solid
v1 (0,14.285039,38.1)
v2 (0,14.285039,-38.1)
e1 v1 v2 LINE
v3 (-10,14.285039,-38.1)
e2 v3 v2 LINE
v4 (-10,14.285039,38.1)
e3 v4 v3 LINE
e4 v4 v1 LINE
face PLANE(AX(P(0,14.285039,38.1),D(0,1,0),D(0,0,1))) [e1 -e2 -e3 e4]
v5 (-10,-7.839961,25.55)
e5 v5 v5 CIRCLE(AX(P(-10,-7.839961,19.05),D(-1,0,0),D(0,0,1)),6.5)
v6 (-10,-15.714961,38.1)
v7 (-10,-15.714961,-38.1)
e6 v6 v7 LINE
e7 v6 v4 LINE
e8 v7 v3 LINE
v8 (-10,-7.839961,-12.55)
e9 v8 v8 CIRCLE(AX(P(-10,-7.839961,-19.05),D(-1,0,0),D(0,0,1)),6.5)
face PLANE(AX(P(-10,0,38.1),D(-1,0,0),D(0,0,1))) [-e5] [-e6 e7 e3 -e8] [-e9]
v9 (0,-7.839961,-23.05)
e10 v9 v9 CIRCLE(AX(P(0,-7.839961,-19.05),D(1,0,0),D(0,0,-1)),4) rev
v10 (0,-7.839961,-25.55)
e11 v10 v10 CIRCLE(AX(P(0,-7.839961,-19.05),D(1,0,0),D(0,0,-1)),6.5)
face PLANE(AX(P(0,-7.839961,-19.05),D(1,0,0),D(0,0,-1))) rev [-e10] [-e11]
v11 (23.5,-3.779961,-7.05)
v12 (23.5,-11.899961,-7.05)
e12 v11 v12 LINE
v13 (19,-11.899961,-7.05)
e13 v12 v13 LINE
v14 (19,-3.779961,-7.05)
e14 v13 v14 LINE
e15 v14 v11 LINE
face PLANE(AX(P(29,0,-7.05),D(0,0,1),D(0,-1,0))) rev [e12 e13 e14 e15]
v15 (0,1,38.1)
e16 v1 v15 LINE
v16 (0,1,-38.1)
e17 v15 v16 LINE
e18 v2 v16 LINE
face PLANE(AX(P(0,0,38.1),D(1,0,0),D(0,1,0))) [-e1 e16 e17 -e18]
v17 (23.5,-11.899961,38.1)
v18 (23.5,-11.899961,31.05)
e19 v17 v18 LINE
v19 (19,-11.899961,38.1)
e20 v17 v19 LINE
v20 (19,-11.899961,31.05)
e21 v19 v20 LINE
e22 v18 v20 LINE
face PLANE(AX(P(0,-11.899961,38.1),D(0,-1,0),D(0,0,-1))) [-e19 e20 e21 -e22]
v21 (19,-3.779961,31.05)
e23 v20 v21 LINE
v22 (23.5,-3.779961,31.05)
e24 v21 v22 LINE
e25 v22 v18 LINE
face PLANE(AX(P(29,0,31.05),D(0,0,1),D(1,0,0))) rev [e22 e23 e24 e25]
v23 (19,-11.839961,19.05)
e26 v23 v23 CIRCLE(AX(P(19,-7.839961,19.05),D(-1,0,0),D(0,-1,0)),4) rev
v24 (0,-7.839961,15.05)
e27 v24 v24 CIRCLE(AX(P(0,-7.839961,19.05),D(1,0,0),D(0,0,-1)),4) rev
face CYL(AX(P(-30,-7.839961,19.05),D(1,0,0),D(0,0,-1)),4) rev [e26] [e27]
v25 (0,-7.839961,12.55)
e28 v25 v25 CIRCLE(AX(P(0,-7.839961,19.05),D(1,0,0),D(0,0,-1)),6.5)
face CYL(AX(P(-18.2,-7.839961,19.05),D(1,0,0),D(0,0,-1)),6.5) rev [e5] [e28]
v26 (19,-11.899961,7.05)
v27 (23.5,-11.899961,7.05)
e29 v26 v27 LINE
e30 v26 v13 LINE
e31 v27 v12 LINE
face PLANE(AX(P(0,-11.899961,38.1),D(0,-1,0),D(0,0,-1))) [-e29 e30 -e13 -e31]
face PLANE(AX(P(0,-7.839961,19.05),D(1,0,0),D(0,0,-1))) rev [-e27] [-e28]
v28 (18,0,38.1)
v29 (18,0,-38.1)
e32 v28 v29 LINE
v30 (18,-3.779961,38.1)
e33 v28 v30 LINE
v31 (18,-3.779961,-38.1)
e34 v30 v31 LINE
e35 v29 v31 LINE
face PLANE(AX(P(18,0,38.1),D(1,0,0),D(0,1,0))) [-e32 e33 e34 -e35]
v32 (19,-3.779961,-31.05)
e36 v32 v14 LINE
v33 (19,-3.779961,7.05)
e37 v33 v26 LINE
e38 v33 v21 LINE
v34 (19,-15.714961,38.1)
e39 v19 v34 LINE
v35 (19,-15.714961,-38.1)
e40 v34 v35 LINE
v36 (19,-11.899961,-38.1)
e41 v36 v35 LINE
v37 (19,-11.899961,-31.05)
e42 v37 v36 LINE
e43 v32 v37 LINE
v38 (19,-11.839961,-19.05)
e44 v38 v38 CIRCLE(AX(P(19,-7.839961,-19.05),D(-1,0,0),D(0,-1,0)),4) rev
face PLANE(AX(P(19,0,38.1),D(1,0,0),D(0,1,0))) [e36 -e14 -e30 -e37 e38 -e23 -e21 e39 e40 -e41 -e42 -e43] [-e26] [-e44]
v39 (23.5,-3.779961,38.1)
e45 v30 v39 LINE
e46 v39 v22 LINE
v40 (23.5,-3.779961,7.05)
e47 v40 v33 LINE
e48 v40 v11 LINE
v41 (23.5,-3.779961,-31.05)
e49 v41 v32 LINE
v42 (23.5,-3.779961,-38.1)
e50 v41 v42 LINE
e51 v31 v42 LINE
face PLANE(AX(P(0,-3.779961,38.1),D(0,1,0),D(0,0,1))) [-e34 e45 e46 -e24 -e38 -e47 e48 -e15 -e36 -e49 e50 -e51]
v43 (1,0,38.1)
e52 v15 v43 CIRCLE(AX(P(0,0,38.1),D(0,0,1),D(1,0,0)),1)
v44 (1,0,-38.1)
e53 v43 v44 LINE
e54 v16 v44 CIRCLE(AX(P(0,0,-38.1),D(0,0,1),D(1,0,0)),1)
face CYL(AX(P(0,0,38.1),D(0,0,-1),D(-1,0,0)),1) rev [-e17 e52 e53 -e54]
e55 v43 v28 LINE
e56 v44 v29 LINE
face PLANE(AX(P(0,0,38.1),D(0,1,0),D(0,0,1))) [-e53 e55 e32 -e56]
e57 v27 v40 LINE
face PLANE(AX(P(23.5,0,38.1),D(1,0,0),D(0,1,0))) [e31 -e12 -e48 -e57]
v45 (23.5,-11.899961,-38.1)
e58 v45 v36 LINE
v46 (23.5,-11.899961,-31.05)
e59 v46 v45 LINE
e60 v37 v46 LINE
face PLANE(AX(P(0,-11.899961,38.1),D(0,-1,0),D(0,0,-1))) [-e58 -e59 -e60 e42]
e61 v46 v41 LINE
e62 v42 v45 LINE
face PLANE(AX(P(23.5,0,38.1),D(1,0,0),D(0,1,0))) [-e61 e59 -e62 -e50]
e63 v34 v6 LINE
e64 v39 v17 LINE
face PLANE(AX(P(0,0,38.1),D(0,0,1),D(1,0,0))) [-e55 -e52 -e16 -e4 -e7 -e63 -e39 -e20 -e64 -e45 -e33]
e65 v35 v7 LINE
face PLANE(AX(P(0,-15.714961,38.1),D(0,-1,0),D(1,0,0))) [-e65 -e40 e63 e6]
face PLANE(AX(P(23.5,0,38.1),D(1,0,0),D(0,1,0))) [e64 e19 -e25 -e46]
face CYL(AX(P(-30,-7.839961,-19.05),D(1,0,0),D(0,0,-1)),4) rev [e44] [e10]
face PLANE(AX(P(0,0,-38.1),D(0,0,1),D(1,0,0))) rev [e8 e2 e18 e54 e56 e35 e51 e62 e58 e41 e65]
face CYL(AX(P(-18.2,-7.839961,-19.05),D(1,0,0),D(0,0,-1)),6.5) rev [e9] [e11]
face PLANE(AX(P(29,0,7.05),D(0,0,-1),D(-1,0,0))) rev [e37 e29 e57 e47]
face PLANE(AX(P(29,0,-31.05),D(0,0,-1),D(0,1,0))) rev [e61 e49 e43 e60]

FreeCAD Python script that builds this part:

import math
import FreeCAD as App
import Part
import Sketcher
from FreeCAD import Vector
Q = App.Units.Quantity

doc = App.newDocument("Part")
params = doc.addObject("Spreadsheet::Sheet", "Params")
for row, (alias, value) in enumerate([
    ("sketch1_radius", "1 mm"),
    ("sketch1_width", "29 mm"),
    ("sketch1_width2", "17 mm"),
    ("sketch1_width3", "10 mm"),
    ("sketch1_height", "30 mm"),
    ("pad1_length", "38.1 mm"),
    ("pad1_length2", "38.1 mm"),
    ("sketch2_diameter", "8 mm"),
    ("sketch3_diameter", "13 mm"),
    ("pocket2_length", "18.2 mm"),
    ("sketch4_width", "20 mm"),
    ("sketch4_height", "24 mm"),
    ("pocket3_length", "10 mm"),
], start=1):
    params.set(f"A{row}", alias)
    params.set(f"B{row}", "=" + value)
    params.setAlias(f"B{row}", alias)

body = doc.addObject("PartDesign::Body", "Body")

# Sketch on XY plane
sketch1 = doc.addObject("Sketcher::SketchObject", "Sketch")
body.addObject(sketch1)
sketch1.AttachmentSupport = (doc.XY_Plane, [""])
sketch1.MapMode = "FlatFace"
sketch1.addGeometry([
    Part.LineSegment(Vector(-10, 14.3, 0), Vector(-10, -15.7, 0)),  # 0
    Part.LineSegment(Vector(-10, -15.7, 0), Vector(19, -15.7, 0)),  # 1
    Part.LineSegment(Vector(19, -15.7, 0), Vector(19, -11.9, 0)),  # 2
    Part.LineSegment(Vector(19, -11.9, 0), Vector(23.5, -11.9, 0)),  # 3
    Part.LineSegment(Vector(23.5, -11.9, 0), Vector(23.5, -3.8, 0)),  # 4
    Part.LineSegment(Vector(23.5, -3.8, 0), Vector(18, -3.8, 0)),  # 5
    Part.LineSegment(Vector(18, -3.8, 0), Vector(18, 0, 0)),  # 6
    Part.LineSegment(Vector(18, 0, 0), Vector(1, 0, 0)),  # 7
    Part.ArcOfCircle(Part.Circle(Vector(0, 0, 0), Vector(0, 0, 1), 1), math.radians(90), math.radians(360)),  # 8
    Part.LineSegment(Vector(0, 1, 0), Vector(0, 14.3, 0)),  # 9
    Part.LineSegment(Vector(0, 14.3, 0), Vector(-10, 14.3, 0)),  # 10
], False)
sketch1.addConstraint([
    Sketcher.Constraint("Coincident", 0, 2, 1, 1),
    Sketcher.Constraint("Coincident", 1, 2, 2, 1),
    Sketcher.Constraint("Coincident", 2, 2, 3, 1),
    Sketcher.Constraint("Coincident", 3, 2, 4, 1),
    Sketcher.Constraint("Coincident", 4, 2, 5, 1),
    Sketcher.Constraint("Coincident", 5, 2, 6, 1),
    Sketcher.Constraint("Coincident", 6, 2, 7, 1),
    Sketcher.Constraint("Coincident", 7, 2, 8, 2),
    Sketcher.Constraint("Coincident", 8, 1, 9, 1),
    Sketcher.Constraint("Coincident", 9, 2, 10, 1),
    Sketcher.Constraint("Coincident", 10, 2, 0, 1),
    Sketcher.Constraint("Vertical", 0),
    Sketcher.Constraint("Horizontal", 1),
    Sketcher.Constraint("Vertical", 2),
    Sketcher.Constraint("Horizontal", 3),
    Sketcher.Constraint("Vertical", 4),
    Sketcher.Constraint("Horizontal", 5),
    Sketcher.Constraint("Vertical", 6),
    Sketcher.Constraint("Horizontal", 7),
    Sketcher.Constraint("Vertical", 9),
    Sketcher.Constraint("Horizontal", 10),
    Sketcher.Constraint("Coincident", 8, 3, -1, 1),
    Sketcher.Constraint("PointOnObject", 6, 2, -1),
    Sketcher.Constraint("PointOnObject", 8, 1, -2),
    Sketcher.Constraint("Radius", 8, Q("1 mm")),
    Sketcher.Constraint("DistanceX", 1, 1, 1, 2, Q("29 mm")),
    Sketcher.Constraint("DistanceX", 7, 2, 7, 1, Q("17 mm")),
    Sketcher.Constraint("DistanceX", 10, 2, 10, 1, Q("10 mm")),
    Sketcher.Constraint("DistanceY", 0, 2, 0, 1, Q("30 mm")),
    Sketcher.Constraint("DistanceX", 3, 1, 3, 2, Q("4.5 mm")),
    Sketcher.Constraint("DistanceY", 4, 1, 4, 2, Q("8.12 mm")),
    Sketcher.Constraint("DistanceY", 2, 1, 2, 2, Q("3.815 mm")),
    Sketcher.Constraint("DistanceY", 6, 1, 6, 2, Q("3.779961 mm")),
])
sketch1.setExpression("Constraints[24]", "Params.sketch1_radius")
sketch1.setExpression("Constraints[25]", "Params.sketch1_width")
sketch1.setExpression("Constraints[26]", "Params.sketch1_width2")
sketch1.setExpression("Constraints[27]", "Params.sketch1_width3")
sketch1.setExpression("Constraints[28]", "Params.sketch1_height")
pad1 = doc.addObject("PartDesign::Pad", "Pad")
body.addObject(pad1)
pad1.Profile = sketch1
pad1.Type = "TwoLengths"
pad1.setExpression("Length", "Params.pad1_length")
pad1.setExpression("Length2", "Params.pad1_length2")

# Sketch on YZ plane
sketch2 = doc.addObject("Sketcher::SketchObject", "Sketch001")
body.addObject(sketch2)
sketch2.AttachmentSupport = (doc.YZ_Plane, [""])
sketch2.MapMode = "FlatFace"
sketch2.addGeometry([
    Part.Circle(Vector(-7.8, 19.1, 0), Vector(0, 0, 1), 4),
    Part.Circle(Vector(-7.8, -19.1, 0), Vector(0, 0, 1), 4),
], False)
sketch2.addConstraint([
    Sketcher.Constraint("Equal", 0, 1),
    Sketcher.Constraint("Symmetric", 0, 3, 1, 3, -1),
    Sketcher.Constraint("Diameter", 0, Q("8 mm")),
    Sketcher.Constraint("DistanceY", 1, 3, 0, 3, Q("38.1 mm")),
    Sketcher.Constraint("DistanceX", 0, 3, -1, 1, Q("7.839961 mm")),
])
sketch2.setExpression("Constraints[2]", "Params.sketch2_diameter")
pocket1 = doc.addObject("PartDesign::Pocket", "Pocket")
body.addObject(pocket1)
pocket1.Profile = sketch2
pocket1.Type = "ThroughAll"
pocket1.Midplane = True

# Sketch on YZ plane
sketch3 = doc.addObject("Sketcher::SketchObject", "Sketch002")
body.addObject(sketch3)
sketch3.AttachmentSupport = (doc.YZ_Plane, [""])
sketch3.MapMode = "FlatFace"
sketch3.addGeometry([
    Part.Circle(Vector(-8, 19, 0), Vector(0, 0, 1), 6),
    Part.Circle(Vector(-8, -19, 0), Vector(0, 0, 1), 6),
], False)
sketch3.addConstraint([
    Sketcher.Constraint("Equal", 0, 1),
    Sketcher.Constraint("Symmetric", 0, 3, 1, 3, -1),
    Sketcher.Constraint("Diameter", 0, Q("13 mm")),
    Sketcher.Constraint("DistanceY", 1, 3, 0, 3, Q("38.1 mm")),
    Sketcher.Constraint("DistanceX", 0, 3, -1, 1, Q("7.839961 mm")),
])
sketch3.setExpression("Constraints[2]", "Params.sketch3_diameter")
pocket2 = doc.addObject("PartDesign::Pocket", "Pocket001")
body.addObject(pocket2)
pocket2.Profile = sketch3
pocket2.setExpression("Length", "Params.pocket2_length")

# Sketch on YZ plane
sketch4 = doc.addObject("Sketcher::SketchObject", "Sketch003")
body.addObject(sketch4)
sketch4.AttachmentSupport = (doc.YZ_Plane, [""])
sketch4.MapMode = "FlatFace"
sketch4.AttachmentOffset = App.Placement(Vector(0, 0, 19), App.Rotation())
sketch4.addGeometry([
    Part.LineSegment(Vector(2, 31, 0), Vector(-18, 31, 0)),  # 0
    Part.LineSegment(Vector(-18, 31, 0), Vector(-18, 7, 0)),  # 1
    Part.LineSegment(Vector(-18, 7, 0), Vector(2, 7, 0)),  # 2
    Part.LineSegment(Vector(2, 7, 0), Vector(2, 31, 0)),  # 3
    Part.LineSegment(Vector(2, -7, 0), Vector(-18, -7, 0)),  # 4
    Part.LineSegment(Vector(-18, -7, 0), Vector(-18, -31, 0)),  # 5
    Part.LineSegment(Vector(-18, -31, 0), Vector(2, -31, 0)),  # 6
    Part.LineSegment(Vector(2, -31, 0), Vector(2, -7, 0)),  # 7
], False)
sketch4.addConstraint([
    Sketcher.Constraint("Coincident", 0, 2, 1, 1),
    Sketcher.Constraint("Coincident", 1, 2, 2, 1),
    Sketcher.Constraint("Coincident", 2, 2, 3, 1),
    Sketcher.Constraint("Coincident", 3, 2, 0, 1),
    Sketcher.Constraint("Coincident", 4, 2, 5, 1),
    Sketcher.Constraint("Coincident", 5, 2, 6, 1),
    Sketcher.Constraint("Coincident", 6, 2, 7, 1),
    Sketcher.Constraint("Coincident", 7, 2, 4, 1),
    Sketcher.Constraint("Horizontal", 0),
    Sketcher.Constraint("Vertical", 1),
    Sketcher.Constraint("Horizontal", 2),
    Sketcher.Constraint("Vertical", 3),
    Sketcher.Constraint("Horizontal", 4),
    Sketcher.Constraint("Vertical", 5),
    Sketcher.Constraint("Horizontal", 6),
    Sketcher.Constraint("Vertical", 7),
    Sketcher.Constraint("Symmetric", 1, 2, 4, 2, -1),
    Sketcher.Constraint("Symmetric", 3, 2, 6, 2, -1),
    Sketcher.Constraint("DistanceX", 0, 2, 0, 1, Q("20 mm")),
    Sketcher.Constraint("DistanceY", 1, 2, 1, 1, Q("24 mm")),
    Sketcher.Constraint("DistanceY", 4, 2, 1, 2, Q("14.1 mm")),
    Sketcher.Constraint("DistanceX", 0, 2, -1, 1, Q("17.839961 mm")),
])
sketch4.setExpression("Constraints[18]", "Params.sketch4_width")
sketch4.setExpression("Constraints[19]", "Params.sketch4_height")
pocket3 = doc.addObject("PartDesign::Pocket", "Pocket002")
body.addObject(pocket3)
pocket3.Profile = sketch4
pocket3.setExpression("Length", "Params.pocket3_length")
pocket3.Reversed = True

doc.recompute()
